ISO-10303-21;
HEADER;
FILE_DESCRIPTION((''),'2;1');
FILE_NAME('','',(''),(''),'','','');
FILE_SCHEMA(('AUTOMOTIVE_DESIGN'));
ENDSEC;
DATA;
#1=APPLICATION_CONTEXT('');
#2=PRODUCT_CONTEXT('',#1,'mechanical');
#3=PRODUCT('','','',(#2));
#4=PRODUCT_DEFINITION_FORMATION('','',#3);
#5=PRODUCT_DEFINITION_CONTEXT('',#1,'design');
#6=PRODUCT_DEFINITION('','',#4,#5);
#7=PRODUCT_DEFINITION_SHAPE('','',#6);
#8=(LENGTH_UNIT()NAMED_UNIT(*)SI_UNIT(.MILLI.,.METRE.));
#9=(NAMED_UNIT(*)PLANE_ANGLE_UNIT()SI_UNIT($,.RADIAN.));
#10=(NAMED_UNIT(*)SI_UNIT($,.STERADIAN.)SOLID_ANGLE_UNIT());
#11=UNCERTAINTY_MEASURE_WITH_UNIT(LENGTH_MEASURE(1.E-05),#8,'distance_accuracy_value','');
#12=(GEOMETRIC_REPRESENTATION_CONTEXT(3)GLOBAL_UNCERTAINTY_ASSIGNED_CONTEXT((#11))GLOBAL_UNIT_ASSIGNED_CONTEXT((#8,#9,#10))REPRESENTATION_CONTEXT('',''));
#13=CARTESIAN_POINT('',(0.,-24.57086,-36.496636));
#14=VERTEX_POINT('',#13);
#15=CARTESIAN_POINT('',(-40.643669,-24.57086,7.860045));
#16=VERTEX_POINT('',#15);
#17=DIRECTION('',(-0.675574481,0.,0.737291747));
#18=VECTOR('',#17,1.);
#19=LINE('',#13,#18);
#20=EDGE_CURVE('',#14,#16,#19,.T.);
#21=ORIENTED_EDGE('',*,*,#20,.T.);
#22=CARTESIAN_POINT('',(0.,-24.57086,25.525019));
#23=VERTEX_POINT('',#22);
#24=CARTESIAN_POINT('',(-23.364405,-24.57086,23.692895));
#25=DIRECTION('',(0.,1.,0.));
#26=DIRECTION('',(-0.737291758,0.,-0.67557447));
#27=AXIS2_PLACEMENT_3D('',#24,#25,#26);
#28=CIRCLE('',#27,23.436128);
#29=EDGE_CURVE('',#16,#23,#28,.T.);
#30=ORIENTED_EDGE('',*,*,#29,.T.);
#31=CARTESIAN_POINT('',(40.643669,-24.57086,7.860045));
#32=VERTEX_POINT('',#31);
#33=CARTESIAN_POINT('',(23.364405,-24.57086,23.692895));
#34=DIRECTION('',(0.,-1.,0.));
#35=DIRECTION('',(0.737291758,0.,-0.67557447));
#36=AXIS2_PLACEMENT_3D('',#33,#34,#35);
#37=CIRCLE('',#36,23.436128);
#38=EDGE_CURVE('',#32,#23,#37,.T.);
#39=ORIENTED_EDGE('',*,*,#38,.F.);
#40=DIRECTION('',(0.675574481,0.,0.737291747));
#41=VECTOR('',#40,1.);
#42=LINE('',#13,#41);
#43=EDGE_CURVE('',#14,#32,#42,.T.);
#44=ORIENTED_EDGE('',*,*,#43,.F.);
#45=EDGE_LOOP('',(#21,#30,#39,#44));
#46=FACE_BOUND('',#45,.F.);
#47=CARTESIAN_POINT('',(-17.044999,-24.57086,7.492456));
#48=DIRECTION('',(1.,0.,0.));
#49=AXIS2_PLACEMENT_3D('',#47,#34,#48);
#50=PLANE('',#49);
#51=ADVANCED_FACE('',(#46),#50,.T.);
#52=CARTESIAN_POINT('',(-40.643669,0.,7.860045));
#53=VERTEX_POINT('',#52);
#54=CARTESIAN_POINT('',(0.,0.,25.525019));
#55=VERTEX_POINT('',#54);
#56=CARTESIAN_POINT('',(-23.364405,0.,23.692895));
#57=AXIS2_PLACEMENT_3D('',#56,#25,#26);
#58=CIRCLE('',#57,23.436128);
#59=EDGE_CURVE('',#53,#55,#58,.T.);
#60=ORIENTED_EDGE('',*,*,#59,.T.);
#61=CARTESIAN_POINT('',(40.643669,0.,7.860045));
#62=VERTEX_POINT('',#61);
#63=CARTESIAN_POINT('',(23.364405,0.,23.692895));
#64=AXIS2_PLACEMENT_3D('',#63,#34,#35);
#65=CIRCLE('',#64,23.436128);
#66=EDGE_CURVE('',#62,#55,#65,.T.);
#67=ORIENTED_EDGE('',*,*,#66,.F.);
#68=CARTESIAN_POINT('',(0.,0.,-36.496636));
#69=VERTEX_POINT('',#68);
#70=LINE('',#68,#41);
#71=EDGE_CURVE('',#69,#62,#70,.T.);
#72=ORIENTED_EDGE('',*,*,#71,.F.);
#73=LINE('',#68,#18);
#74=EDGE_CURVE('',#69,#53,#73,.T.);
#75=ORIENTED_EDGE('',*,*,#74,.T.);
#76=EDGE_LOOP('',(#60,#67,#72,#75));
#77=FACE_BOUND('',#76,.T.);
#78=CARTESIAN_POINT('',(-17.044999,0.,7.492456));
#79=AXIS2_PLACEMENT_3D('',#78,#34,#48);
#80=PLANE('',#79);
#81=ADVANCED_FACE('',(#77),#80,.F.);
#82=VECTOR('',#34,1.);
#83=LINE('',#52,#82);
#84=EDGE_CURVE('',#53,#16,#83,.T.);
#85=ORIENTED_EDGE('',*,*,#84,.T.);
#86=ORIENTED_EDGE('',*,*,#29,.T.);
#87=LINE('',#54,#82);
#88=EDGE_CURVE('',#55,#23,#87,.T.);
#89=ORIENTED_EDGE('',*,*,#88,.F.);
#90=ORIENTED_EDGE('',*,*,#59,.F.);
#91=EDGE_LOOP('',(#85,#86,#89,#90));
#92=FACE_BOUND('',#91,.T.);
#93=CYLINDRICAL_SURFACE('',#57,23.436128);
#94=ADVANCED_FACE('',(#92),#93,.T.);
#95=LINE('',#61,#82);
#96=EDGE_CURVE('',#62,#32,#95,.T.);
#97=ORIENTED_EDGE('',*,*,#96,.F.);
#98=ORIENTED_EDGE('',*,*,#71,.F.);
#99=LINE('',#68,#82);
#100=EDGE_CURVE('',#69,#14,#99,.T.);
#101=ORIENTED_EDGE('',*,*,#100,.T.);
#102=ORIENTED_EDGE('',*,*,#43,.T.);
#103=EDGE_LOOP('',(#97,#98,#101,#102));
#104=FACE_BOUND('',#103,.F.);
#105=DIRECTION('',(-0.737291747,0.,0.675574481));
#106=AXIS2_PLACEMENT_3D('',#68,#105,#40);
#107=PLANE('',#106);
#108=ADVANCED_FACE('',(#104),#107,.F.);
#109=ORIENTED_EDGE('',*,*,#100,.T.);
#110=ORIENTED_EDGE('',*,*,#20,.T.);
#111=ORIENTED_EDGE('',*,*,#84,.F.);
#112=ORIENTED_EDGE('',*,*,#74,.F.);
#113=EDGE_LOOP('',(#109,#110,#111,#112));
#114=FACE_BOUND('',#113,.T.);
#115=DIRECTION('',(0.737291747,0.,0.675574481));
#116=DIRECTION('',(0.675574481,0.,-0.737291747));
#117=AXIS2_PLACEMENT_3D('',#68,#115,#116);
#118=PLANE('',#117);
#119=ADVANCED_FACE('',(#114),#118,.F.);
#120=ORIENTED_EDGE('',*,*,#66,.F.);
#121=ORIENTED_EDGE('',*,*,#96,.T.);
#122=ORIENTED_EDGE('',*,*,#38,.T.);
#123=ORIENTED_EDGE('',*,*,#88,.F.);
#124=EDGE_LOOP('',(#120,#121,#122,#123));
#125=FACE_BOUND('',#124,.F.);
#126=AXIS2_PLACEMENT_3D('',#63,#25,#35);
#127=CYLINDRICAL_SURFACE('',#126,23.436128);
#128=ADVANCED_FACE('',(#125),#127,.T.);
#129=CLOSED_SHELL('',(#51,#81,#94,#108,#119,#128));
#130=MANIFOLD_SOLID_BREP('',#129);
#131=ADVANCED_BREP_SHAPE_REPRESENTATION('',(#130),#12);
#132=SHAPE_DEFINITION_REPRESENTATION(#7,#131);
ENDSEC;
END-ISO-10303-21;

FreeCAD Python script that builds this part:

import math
import FreeCAD as App
import Part
import Sketcher
Q = App.Units.Quantity

doc = App.newDocument("Part")
body = doc.addObject("PartDesign::Body", "Body")

# Sketch on XZ plane
sketch1 = body.newObject("Sketcher::SketchObject", "Sketch")
sketch1.AttachmentSupport = (doc.getObject("XZ_Plane"), [""])
sketch1.MapMode = "FlatFace"
sketch1.addGeometry(Part.LineSegment(App.Vector(0, -36, 0), App.Vector(41, 8, 0)), False)
sketch1.addGeometry(Part.ArcOfCircle(Part.Circle(App.Vector(23, 24, 0), App.Vector(0, 0, 1), 23), math.radians(-42), math.radians(176)), False)
sketch1.addGeometry(Part.LineSegment(App.Vector(0, 26, 0), App.Vector(0, -36, 0)), False)
sketch1.addConstraint(Sketcher.Constraint("Tangent", 0, 2, 1, 1))
sketch1.addConstraint(Sketcher.Constraint("Coincident", 1, 2, 2, 1))
sketch1.addConstraint(Sketcher.Constraint("Coincident", 2, 2, 0, 1))
sketch1.addConstraint(Sketcher.Constraint("Vertical", 2))
sketch1.addConstraint(Sketcher.Constraint("PointOnObject", 1, 2, -2))
sketch1.addConstraint(Sketcher.Constraint("Radius", 1, Q("23.436128 mm")))
sketch1.addConstraint(Sketcher.Constraint("Distance", 0, Q("60.16164 mm")))
sketch1.addConstraint(Sketcher.Constraint("DistanceY", 2, 2, 2, 1, Q("62.021655 mm")))
sketch1.addConstraint(Sketcher.Constraint("DistanceY", -1, 1, 1, 2, Q("25.525019 mm")))
pad1 = body.newObject("PartDesign::Pad", "Pad")
pad1.Profile = sketch1
pad1.Length = 24.57086
body2 = doc.addObject("PartDesign::Body", "Body001")
doc.recompute()

body2.BaseFeature = body
doc.recompute()

mirroring = doc.addObject("Part::Mirroring", "Mirroring")
mirroring.Source = body
mirroring.Base = App.Vector(0, 0, 0)
mirroring.Normal = App.Vector(1, 0, 0)
body3 = doc.addObject("PartDesign::Body", "Body002")
body3.BaseFeature = mirroring
boolean = body2.newObject("PartDesign::Boolean", "Boolean")
boolean.Type = "Fuse"
boolean.addObjects([body3])
doc.recompute()
mirroring.Visibility = False

doc.recompute()
